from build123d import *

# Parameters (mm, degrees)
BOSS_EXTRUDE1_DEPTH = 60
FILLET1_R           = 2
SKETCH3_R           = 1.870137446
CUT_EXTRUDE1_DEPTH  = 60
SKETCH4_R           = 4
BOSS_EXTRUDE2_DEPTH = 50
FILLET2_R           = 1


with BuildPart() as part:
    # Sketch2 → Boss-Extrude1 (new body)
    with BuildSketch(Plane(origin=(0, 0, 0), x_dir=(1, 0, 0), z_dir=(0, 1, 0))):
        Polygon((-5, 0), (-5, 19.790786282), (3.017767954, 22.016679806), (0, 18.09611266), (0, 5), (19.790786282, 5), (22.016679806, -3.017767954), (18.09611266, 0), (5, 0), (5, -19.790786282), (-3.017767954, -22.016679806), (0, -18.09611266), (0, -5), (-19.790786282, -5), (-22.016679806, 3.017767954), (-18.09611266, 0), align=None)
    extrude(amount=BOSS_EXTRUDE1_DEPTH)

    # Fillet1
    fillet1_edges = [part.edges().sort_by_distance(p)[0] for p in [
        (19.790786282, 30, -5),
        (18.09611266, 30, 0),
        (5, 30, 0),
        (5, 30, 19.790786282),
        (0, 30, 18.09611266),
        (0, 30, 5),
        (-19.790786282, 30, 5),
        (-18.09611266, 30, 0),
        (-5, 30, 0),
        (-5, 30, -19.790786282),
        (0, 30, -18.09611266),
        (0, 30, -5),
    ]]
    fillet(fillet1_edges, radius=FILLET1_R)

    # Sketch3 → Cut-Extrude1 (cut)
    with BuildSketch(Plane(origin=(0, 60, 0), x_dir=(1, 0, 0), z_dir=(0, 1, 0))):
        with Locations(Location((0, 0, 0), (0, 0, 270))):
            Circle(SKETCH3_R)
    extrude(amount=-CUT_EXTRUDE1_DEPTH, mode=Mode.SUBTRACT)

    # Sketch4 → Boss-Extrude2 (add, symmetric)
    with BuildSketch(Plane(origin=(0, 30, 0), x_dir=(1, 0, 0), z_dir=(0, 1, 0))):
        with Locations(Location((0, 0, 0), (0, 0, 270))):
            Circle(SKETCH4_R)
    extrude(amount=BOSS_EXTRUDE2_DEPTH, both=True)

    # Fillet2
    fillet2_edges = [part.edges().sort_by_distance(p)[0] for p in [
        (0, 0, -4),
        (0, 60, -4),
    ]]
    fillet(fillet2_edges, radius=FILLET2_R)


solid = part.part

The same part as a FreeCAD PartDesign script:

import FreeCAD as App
import Part
import Sketcher

V = App.Vector


def edges_at(feature, points):
    """Names of the edges that pass closest to the given points."""
    edges = feature.Shape.Edges
    near = lambda p: min(range(len(edges)), key=lambda i: edges[i].distToShape(Part.Vertex(*p))[0])
    return sorted({f"Edge{near(p) + 1}" for p in points})


def add_polygon(sketch, points):
    """Adds a closed chain of lines whose ends are joined by coincident constraints."""
    first, n = sketch.GeometryCount, len(points)
    for a, b in zip(points, points[1:] + points[:1]):
        sketch.addGeometry(Part.LineSegment(App.Vector(*a, 0), App.Vector(*b, 0)), False)
    for i in range(n):
        sketch.addConstraint(Sketcher.Constraint("Coincident", first + i, 2, first + (i + 1) % n, 1))

doc = App.newDocument("Part")
body = doc.addObject("PartDesign::Body", "Body")

# Sketch on XZ plane
sketch1 = doc.addObject("Sketcher::SketchObject", "Sketch")
body.addObject(sketch1)
sketch1.AttachmentSupport = (doc.XZ_Plane, [""])
sketch1.MapMode = "FlatFace"
add_polygon(sketch1, [(-5, -19.8), (-5, 0), (-18.1, 0), (-22, -3), (-19.8, 5), (0, 5), (0, 18.1), (-3, 22), (5, 19.8), (5, 0), (18.1, 0), (22, 3), (19.8, -5), (0, -5), (0, -18.1), (3, -22)])  # lines 0-15
sketch1.addConstraint([
    Sketcher.Constraint("Vertical", 0),
    Sketcher.Constraint("Horizontal", 1),
    Sketcher.Constraint("Horizontal", 4),
    Sketcher.Constraint("Vertical", 5),
    Sketcher.Constraint("Vertical", 8),
    Sketcher.Constraint("Horizontal", 9),
    Sketcher.Constraint("Horizontal", 12),
    Sketcher.Constraint("Vertical", 13),
    Sketcher.Constraint("Symmetric", 0, 2, 8, 2, -1, 1),
    Sketcher.Constraint("Symmetric", 2, 2, 10, 2, -1, 1),
    Sketcher.Constraint("Symmetric", 3, 2, 11, 2, -1, 1),
    Sketcher.Constraint("Symmetric", 5, 2, 13, 2, -1, 1),
    Sketcher.Constraint("Symmetric", 6, 2, 14, 2, -1, 1),
    Sketcher.Constraint("Symmetric", 1, 2, 9, 2, -2),
    Sketcher.Constraint("PointOnObject", 4, 2, -2),
    Sketcher.Constraint("Perpendicular", 2, 6),
    Sketcher.Constraint("Perpendicular", 3, 7),
    Sketcher.Constraint("Perpendicular", 11, 15),
    Sketcher.Constraint("Equal", 12, 0),
    Sketcher.Constraint("Equal", 9, 5),
    Sketcher.Constraint("Equal", 2, 6),
    Sketcher.Constraint("DistanceX", 0, 2, -1, 1, 5.0),
    Sketcher.Constraint("Distance", 2, 4.947501),
    Sketcher.Constraint("Distance", 3, 8.32101),
    Sketcher.Constraint("DistanceX", 1, 2, 1, 1, 13.096113),
    Sketcher.Constraint("DistanceX", 4, 1, 4, 2, 19.790786),
])
pad1 = doc.addObject("PartDesign::Pad", "Pad")
body.addObject(pad1)
pad1.Profile = sketch1
pad1.Length = 60
pad1.Reversed = True
doc.recompute()

fillet = doc.addObject("PartDesign::Fillet", "Fillet")
body.addObject(fillet)
fillet.Base = (pad1, edges_at(pad1, [
    (19.791, 30, -5),
    (18.096, 30, 0),
    (5, 30, 0),
    (5, 30, 19.791),
    (0, 30, 18.096),
    (0, 30, 5),
    (-19.791, 30, 5),
    (-18.096, 30, 0),
    (-5, 30, 0),
    (-5, 30, -19.791),
    (0, 30, -18.096),
    (0, 30, -5),
]))
fillet.Radius = 2

# Sketch on XZ plane
sketch2 = doc.addObject("Sketcher::SketchObject", "Sketch001")
body.addObject(sketch2)
sketch2.AttachmentSupport = (doc.XZ_Plane, [""])
sketch2.MapMode = "FlatFace"
sketch2.AttachmentOffset = App.Placement(V(0, 0, -60), App.Rotation())
sketch2.addGeometry(Part.Circle(V(0, 0, 0), V(0, 0, 1), 1.9), False)
sketch2.addConstraint([
    Sketcher.Constraint("Coincident", 0, 3, -1, 1),
    Sketcher.Constraint("Diameter", 0, 3.740275),
])
pocket1 = doc.addObject("PartDesign::Pocket", "Pocket")
body.addObject(pocket1)
pocket1.Profile = sketch2
pocket1.Length = 60
pocket1.Reversed = True

# Sketch on XZ plane
sketch3 = doc.addObject("Sketcher::SketchObject", "Sketch002")
body.addObject(sketch3)
sketch3.AttachmentSupport = (doc.XZ_Plane, [""])
sketch3.MapMode = "FlatFace"
sketch3.AttachmentOffset = App.Placement(V(0, 0, -30), App.Rotation())
sketch3.addGeometry(Part.Circle(V(0, 0, 0), V(0, 0, 1), 4), False)
sketch3.addConstraint([
    Sketcher.Constraint("Coincident", 0, 3, -1, 1),
    Sketcher.Constraint("Diameter", 0, 8.0),
])
pad2 = doc.addObject("PartDesign::Pad", "Pad001")
body.addObject(pad2)
pad2.Profile = sketch3
pad2.Length = 100
pad2.Midplane = True
doc.recompute()

fillet2 = doc.addObject("PartDesign::Fillet", "Fillet001")
body.addObject(fillet2)
fillet2.Base = (pad2, edges_at(pad2, [(0, 0, -4), (0, 60, -4)]))
fillet2.Radius = 1

doc.recompute()
